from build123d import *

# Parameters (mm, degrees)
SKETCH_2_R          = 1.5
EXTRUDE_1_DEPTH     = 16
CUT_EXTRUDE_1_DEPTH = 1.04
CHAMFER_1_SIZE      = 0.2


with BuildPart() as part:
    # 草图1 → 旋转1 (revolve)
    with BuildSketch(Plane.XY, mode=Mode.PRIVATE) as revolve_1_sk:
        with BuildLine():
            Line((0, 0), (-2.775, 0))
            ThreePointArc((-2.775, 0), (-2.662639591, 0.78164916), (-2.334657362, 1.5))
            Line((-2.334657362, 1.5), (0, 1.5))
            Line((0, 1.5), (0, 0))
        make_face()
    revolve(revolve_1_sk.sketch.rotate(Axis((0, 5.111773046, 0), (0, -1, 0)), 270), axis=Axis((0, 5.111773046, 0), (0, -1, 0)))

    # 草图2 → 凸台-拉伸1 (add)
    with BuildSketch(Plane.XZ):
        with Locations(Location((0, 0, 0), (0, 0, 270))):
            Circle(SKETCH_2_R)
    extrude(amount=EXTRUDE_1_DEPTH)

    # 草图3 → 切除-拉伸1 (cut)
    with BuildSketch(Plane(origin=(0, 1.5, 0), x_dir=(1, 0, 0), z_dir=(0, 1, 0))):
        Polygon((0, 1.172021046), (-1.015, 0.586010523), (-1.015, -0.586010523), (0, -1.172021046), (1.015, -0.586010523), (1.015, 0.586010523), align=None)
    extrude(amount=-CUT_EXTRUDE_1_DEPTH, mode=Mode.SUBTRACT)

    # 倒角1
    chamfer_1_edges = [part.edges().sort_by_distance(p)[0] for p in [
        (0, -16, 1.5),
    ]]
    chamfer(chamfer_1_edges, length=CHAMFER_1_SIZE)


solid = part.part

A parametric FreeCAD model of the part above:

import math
import FreeCAD as App
import Part
import Sketcher
Q = App.Units.Quantity


def edges_at(feature, points):
    """Names of the edges that pass closest to the given points."""
    edges = feature.Shape.Edges
    near = lambda p: min(range(len(edges)), key=lambda i: edges[i].distToShape(Part.Vertex(*p))[0])
    return sorted({f"Edge{near(p) + 1}" for p in points})

doc = App.newDocument("Part")
params = doc.addObject("Spreadsheet::Sheet", "Params")
for row, (alias, value) in enumerate([
    ("sketch1_height", "1.5 mm"),
    ("revolution_angle", "360 deg"),
    ("sketch2_diameter", "3 mm"),
    ("pad1_length", "16 mm"),
    ("pocket1_length", "1.04 mm"),
    ("chamfer_size", "0.2 mm"),
], start=1):
    params.set(f"A{row}", alias)
    params.set(f"B{row}", "=" + value)
    params.setAlias(f"B{row}", alias)

body = doc.addObject("PartDesign::Body", "Body")

# Sketch on XY plane
sketch1 = body.newObject("Sketcher::SketchObject", "Sketch")
sketch1.AttachmentSupport = (doc.getObject("XY_Plane"), [""])
sketch1.MapMode = "FlatFace"
sketch1.addGeometry([
    Part.LineSegment(App.Vector(-2.775, 0, 0), App.Vector(0, 0, 0)),
    Part.LineSegment(App.Vector(0, 0, 0), App.Vector(0, 1.5, 0)),
    Part.LineSegment(App.Vector(0, 1.5, 0), App.Vector(-2.334657, 1.5, 0)),
    Part.ArcOfCircle(Part.Circle(App.Vector(0, 0, 0), App.Vector(0, 0, 1), 2.775), math.radians(147.279557), math.radians(180)),
], False)
sketch1.addConstraint([
    Sketcher.Constraint("Coincident", 0, 2, 1, 1),
    Sketcher.Constraint("Coincident", 1, 2, 2, 1),
    Sketcher.Constraint("Coincident", 2, 2, 3, 1),
    Sketcher.Constraint("Coincident", 3, 2, 0, 1),
    Sketcher.Constraint("Horizontal", 0),
    Sketcher.Constraint("Vertical", 1),
    Sketcher.Constraint("Horizontal", 2),
    Sketcher.Constraint("Coincident", 3, 3, -1, 1),
    Sketcher.Constraint("Coincident", 0, 2, -1, 1),
    Sketcher.Constraint("DistanceY", 1, 1, 1, 2, Q("1.5 mm")),
    Sketcher.Constraint("Radius", 3, Q("2.775 mm")),
])
sketch1.setExpression("Constraints[9]", "Params.sketch1_height")
revolution = body.newObject("PartDesign::Revolution", "Revolution")
revolution.Profile = sketch1
revolution.ReferenceAxis = (sketch1, ["V_Axis"])
revolution.setExpression("Angle", "Params.revolution_angle")

# Sketch on XZ plane
sketch2 = body.newObject("Sketcher::SketchObject", "Sketch001")
sketch2.AttachmentSupport = (doc.getObject("XZ_Plane"), [""])
sketch2.MapMode = "FlatFace"
sketch2.addGeometry(Part.Circle(App.Vector(0, 0, 0), App.Vector(0, 0, 1), 1.5), False)
sketch2.addConstraint([
    Sketcher.Constraint("Coincident", 0, 3, -1, 1),
    Sketcher.Constraint("Diameter", 0, Q("3 mm")),
])
sketch2.setExpression("Constraints[1]", "Params.sketch2_diameter")
pad1 = body.newObject("PartDesign::Pad", "Pad")
pad1.Profile = sketch2
pad1.setExpression("Length", "Params.pad1_length")

# Sketch on XZ plane
sketch3 = body.newObject("Sketcher::SketchObject", "Sketch002")
sketch3.AttachmentSupport = (doc.getObject("XZ_Plane"), [""])
sketch3.MapMode = "FlatFace"
sketch3.AttachmentOffset = App.Placement(App.Vector(0, 0, -1.5), App.Rotation())
sketch3.addGeometry([
    Part.LineSegment(App.Vector(0, -1.172021, 0), App.Vector(-1.015, -0.586011, 0)),  # 0
    Part.LineSegment(App.Vector(-1.015, -0.586011, 0), App.Vector(-1.015, 0.586011, 0)),  # 1
    Part.LineSegment(App.Vector(-1.015, 0.586011, 0), App.Vector(0, 1.172021, 0)),  # 2
    Part.LineSegment(App.Vector(0, 1.172021, 0), App.Vector(1.015, 0.586011, 0)),  # 3
    Part.LineSegment(App.Vector(1.015, 0.586011, 0), App.Vector(1.015, -0.586011, 0)),  # 4
    Part.LineSegment(App.Vector(1.015, -0.586011, 0), App.Vector(0, -1.172021, 0)),  # 5
], False)
sketch3.addConstraint([
    Sketcher.Constraint("Coincident", 0, 2, 1, 1),
    Sketcher.Constraint("Coincident", 1, 2, 2, 1),
    Sketcher.Constraint("Coincident", 2, 2, 3, 1),
    Sketcher.Constraint("Coincident", 3, 2, 4, 1),
    Sketcher.Constraint("Coincident", 4, 2, 5, 1),
    Sketcher.Constraint("Coincident", 5, 2, 0, 1),
    Sketcher.Constraint("Vertical", 1),
    Sketcher.Constraint("Vertical", 4),
    Sketcher.Constraint("Symmetric", 0, 2, 3, 2, -1, 1),
    Sketcher.Constraint("Symmetric", 2, 2, 5, 2, -1, 1),
    Sketcher.Constraint("PointOnObject", 2, 2, -2),
    Sketcher.Constraint("Parallel", 2, 5),
    Sketcher.Constraint("Horizontal", 1, 2, 3, 2),
    Sketcher.Constraint("Angle", 0, Q("150 deg")),
    Sketcher.Constraint("DistanceX", 1, 2, 3, 2, Q("2.03 mm")),
    Sketcher.Constraint("DistanceY", 1, 1, 1, 2, Q("1.172021 mm")),
])
pocket1 = body.newObject("PartDesign::Pocket", "Pocket")
pocket1.Profile = sketch3
pocket1.setExpression("Length", "Params.pocket1_length")
pocket1.Reversed = True
doc.recompute()

chamfer = body.newObject("PartDesign::Chamfer", "Chamfer")
chamfer.Base = (pocket1, edges_at(pocket1, [(0, -16, 1.5)]))
chamfer.setExpression("Size", "Params.chamfer_size")

doc.recompute()
